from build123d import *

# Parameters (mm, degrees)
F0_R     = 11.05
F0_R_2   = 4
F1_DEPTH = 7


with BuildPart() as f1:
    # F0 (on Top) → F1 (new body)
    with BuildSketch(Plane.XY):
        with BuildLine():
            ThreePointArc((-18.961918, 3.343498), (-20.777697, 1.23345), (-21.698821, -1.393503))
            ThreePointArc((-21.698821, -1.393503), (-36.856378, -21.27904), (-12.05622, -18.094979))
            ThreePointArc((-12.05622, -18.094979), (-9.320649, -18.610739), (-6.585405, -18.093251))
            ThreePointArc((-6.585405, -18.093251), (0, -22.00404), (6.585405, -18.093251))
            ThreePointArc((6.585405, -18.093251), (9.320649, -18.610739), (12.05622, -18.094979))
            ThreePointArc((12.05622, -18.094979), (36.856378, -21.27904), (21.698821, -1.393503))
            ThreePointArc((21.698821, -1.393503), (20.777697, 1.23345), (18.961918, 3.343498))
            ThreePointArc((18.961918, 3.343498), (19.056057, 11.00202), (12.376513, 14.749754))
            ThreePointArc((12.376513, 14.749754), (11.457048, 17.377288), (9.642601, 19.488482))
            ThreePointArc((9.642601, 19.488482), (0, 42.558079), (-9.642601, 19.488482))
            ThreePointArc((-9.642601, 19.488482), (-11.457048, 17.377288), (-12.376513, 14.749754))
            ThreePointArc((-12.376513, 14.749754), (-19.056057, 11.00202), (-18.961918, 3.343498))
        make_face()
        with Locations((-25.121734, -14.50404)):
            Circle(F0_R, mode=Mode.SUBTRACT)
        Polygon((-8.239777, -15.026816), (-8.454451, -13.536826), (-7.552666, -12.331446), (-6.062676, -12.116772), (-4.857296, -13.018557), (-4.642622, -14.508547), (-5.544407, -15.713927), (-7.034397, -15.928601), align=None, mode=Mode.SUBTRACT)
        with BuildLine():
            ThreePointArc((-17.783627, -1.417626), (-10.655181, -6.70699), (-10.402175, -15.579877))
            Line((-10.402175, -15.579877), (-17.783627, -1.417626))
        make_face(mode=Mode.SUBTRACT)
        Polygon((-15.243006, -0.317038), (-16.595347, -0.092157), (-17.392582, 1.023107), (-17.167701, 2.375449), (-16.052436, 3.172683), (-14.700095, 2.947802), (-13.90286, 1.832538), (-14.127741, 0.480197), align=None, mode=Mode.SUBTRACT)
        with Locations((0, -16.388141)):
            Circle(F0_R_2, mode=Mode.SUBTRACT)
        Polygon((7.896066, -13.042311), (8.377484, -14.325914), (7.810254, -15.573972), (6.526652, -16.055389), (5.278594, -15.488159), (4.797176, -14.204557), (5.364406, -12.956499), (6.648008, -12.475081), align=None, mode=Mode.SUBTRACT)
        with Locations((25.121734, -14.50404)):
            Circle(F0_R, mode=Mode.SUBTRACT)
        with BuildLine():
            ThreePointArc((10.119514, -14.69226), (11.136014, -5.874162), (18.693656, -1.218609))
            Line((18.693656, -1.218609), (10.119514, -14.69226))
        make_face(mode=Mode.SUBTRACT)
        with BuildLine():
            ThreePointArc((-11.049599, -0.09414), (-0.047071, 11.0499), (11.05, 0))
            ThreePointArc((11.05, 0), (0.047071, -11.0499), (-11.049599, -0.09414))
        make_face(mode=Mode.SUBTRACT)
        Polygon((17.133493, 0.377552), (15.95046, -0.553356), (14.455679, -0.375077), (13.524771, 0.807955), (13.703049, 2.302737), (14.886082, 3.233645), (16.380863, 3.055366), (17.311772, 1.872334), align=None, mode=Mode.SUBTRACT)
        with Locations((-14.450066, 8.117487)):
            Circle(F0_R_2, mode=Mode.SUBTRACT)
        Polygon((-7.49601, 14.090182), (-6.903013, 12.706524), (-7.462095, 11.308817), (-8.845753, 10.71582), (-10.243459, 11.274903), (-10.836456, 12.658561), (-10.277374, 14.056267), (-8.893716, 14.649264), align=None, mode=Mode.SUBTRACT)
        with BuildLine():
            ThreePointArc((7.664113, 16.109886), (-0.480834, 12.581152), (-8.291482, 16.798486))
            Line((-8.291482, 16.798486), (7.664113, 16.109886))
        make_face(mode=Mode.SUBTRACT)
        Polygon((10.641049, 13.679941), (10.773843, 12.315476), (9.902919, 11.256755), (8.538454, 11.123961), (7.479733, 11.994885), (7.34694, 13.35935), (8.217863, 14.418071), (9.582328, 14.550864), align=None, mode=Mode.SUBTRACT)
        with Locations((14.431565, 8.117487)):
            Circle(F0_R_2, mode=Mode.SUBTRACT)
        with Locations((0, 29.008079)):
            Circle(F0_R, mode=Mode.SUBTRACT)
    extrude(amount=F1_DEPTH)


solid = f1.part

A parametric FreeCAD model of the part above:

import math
import FreeCAD as App
import Part
import Sketcher

V = App.Vector
Q = App.Units.Quantity

doc = App.newDocument("Part")
body = doc.addObject("PartDesign::Body", "Body")

# Sketch on XY plane
sketch1 = doc.addObject("Sketcher::SketchObject", "Sketch")
body.addObject(sketch1)
sketch1.AttachmentSupport = (doc.XY_Plane, [""])
sketch1.MapMode = "FlatFace"
sketch1.addGeometry(Part.ArcOfCircle(Part.Circle(V(-14.283686, -2.518602, 0), V(0, 0, 1), 7.500005), math.radians(128.591514), math.radians(171.372312)), False)
sketch1.addGeometry(Part.ArcOfCircle(Part.Circle(V(-25.121734, -14.50404, 0), V(0, 0, 1), 13.55), math.radians(75.36778), math.radians(344.632216)), False)
sketch1.addGeometry(Part.ArcOfCircle(Part.Circle(V(-9.323018, -11.110744, 0), V(0, 0, 1), 7.499995), math.radians(-111.372332), math.radians(-68.591473)), False)
sketch1.addGeometry(Part.ArcOfCircle(Part.Circle(V(0, -14.504041, 0), V(0, 0, 1), 7.499999), math.radians(-151.408512), math.radians(-28.591488)), False)
sketch1.addGeometry(Part.ArcOfCircle(Part.Circle(V(9.323018, -11.110744, 0), V(0, 0, 1), 7.499995), math.radians(-111.408527), math.radians(-68.627668)), False)
sketch1.addGeometry(Part.ArcOfCircle(Part.Circle(V(25.121734, -14.50404, 0), V(0, 0, 1), 13.55), math.radians(-164.632216), math.radians(104.63222)), False)
sketch1.addGeometry(Part.ArcOfCircle(Part.Circle(V(14.283686, -2.518602, 0), V(0, 0, 1), 7.500005), math.radians(8.627688), math.radians(51.408486)), False)
sketch1.addGeometry(Part.ArcOfCircle(Part.Circle(V(12.560866, 7.25202, 0), V(0, 0, 1), 7.5), math.radians(-31.408496), math.radians(91.408496)), False)
sketch1.addGeometry(Part.ArcOfCircle(Part.Circle(V(4.960674, 13.629339, 0), V(0, 0, 1), 7.5), math.radians(8.591503), math.radians(51.372329)), False)
sketch1.addGeometry(Part.ArcOfCircle(Part.Circle(V(0, 29.008079, 0), V(0, 0, 1), 13.55), math.radians(-44.632219), math.radians(224.632219)), False)
sketch1.addGeometry(Part.ArcOfCircle(Part.Circle(V(-4.960674, 13.629339, 0), V(0, 0, 1), 7.5), math.radians(128.627671), math.radians(171.408497)), False)
sketch1.addGeometry(Part.ArcOfCircle(Part.Circle(V(-12.560866, 7.25202, 0), V(0, 0, 1), 7.5), math.radians(88.591504), math.radians(211.408496)), False)
sketch1.addGeometry(Part.Circle(V(-25.121734, -14.50404, 0), V(0, 0, 1), 11.05), False)
sketch1.addGeometry(Part.LineSegment(V(-7.034397, -15.928601, 0), V(-8.239777, -15.026816, 0)), False)
sketch1.addGeometry(Part.LineSegment(V(-8.239777, -15.026816, 0), V(-8.454451, -13.536826, 0)), False)
sketch1.addGeometry(Part.LineSegment(V(-8.454451, -13.536826, 0), V(-7.552666, -12.331446, 0)), False)
sketch1.addGeometry(Part.LineSegment(V(-7.552666, -12.331446, 0), V(-6.062676, -12.116772, 0)), False)
sketch1.addGeometry(Part.LineSegment(V(-6.062676, -12.116772, 0), V(-4.857296, -13.018557, 0)), False)
sketch1.addGeometry(Part.LineSegment(V(-4.857296, -13.018557, 0), V(-4.642622, -14.508547, 0)), False)
sketch1.addGeometry(Part.LineSegment(V(-4.642622, -14.508547, 0), V(-5.544407, -15.713927, 0)), False)
sketch1.addGeometry(Part.LineSegment(V(-5.544407, -15.713927, 0), V(-7.034397, -15.928601, 0)), False)
sketch1.addGeometry(Part.LineSegment(V(-10.402175, -15.579877, 0), V(-17.783627, -1.417626, 0)), False)
sketch1.addGeometry(Part.ArcOfCircle(Part.Circle(V(-19.667004, -11.404008, 0), V(0, 0, 1), 10.162428), math.radians(-24.262169), math.radians(79.319773)), False)
sketch1.addGeometry(Part.LineSegment(V(-14.127741, 0.480197, 0), V(-15.243006, -0.317038, 0)), False)
sketch1.addGeometry(Part.LineSegment(V(-15.243006, -0.317038, 0), V(-16.595347, -0.092157, 0)), False)
sketch1.addGeometry(Part.LineSegment(V(-16.595347, -0.092157, 0), V(-17.392582, 1.023107, 0)), False)
sketch1.addGeometry(Part.LineSegment(V(-17.392582, 1.023107, 0), V(-17.167701, 2.375449, 0)), False)
sketch1.addGeometry(Part.LineSegment(V(-17.167701, 2.375449, 0), V(-16.052436, 3.172683, 0)), False)
sketch1.addGeometry(Part.LineSegment(V(-16.052436, 3.172683, 0), V(-14.700095, 2.947802, 0)), False)
sketch1.addGeometry(Part.LineSegment(V(-14.700095, 2.947802, 0), V(-13.90286, 1.832538, 0)), False)
sketch1.addGeometry(Part.LineSegment(V(-13.90286, 1.832538, 0), V(-14.127741, 0.480197, 0)), False)
sketch1.addGeometry(Part.ArcOfCircle(Part.Circle(V(0, 0, 0), V(0, 0, 1), 11.05), math.radians(-179.511866), math.radians(0.000001)), False)
sketch1.addGeometry(Part.ArcOfCircle(Part.Circle(V(0, 0, 0), V(0, 0, 1), 11.05), math.radians(-0.000001), math.radians(180.488136)), False)
sketch1.addGeometry(Part.Circle(V(0, -16.388141, 0), V(0, 0, 1), 4), False)
sketch1.addGeometry(Part.LineSegment(V(6.648008, -12.475081, 0), V(7.896066, -13.042311, 0)), False)
sketch1.addGeometry(Part.LineSegment(V(7.896066, -13.042311, 0), V(8.377484, -14.325914, 0)), False)
sketch1.addGeometry(Part.LineSegment(V(8.377484, -14.325914, 0), V(7.810254, -15.573972, 0)), False)
sketch1.addGeometry(Part.LineSegment(V(7.810254, -15.573972, 0), V(6.526652, -16.055389, 0)), False)
sketch1.addGeometry(Part.LineSegment(V(6.526652, -16.055389, 0), V(5.278594, -15.488159, 0)), False)
sketch1.addGeometry(Part.LineSegment(V(5.278594, -15.488159, 0), V(4.797176, -14.204557, 0)), False)
sketch1.addGeometry(Part.LineSegment(V(4.797176, -14.204557, 0), V(5.364406, -12.956499, 0)), False)
sketch1.addGeometry(Part.LineSegment(V(5.364406, -12.956499, 0), V(6.648008, -12.475081, 0)), False)
sketch1.addGeometry(Part.Circle(V(25.121734, -14.50404, 0), V(0, 0, 1), 11.05), False)
sketch1.addGeometry(Part.LineSegment(V(18.693656, -1.218609, 0), V(10.119514, -14.69226, 0)), False)
sketch1.addGeometry(Part.ArcOfCircle(Part.Circle(V(19.709663, -11.33012, 0), V(0, 0, 1), 10.162428), math.radians(95.737832), math.radians(199.31978)), False)
sketch1.addGeometry(Part.LineSegment(V(17.311772, 1.872334, 0), V(17.133493, 0.377552, 0)), False)
sketch1.addGeometry(Part.LineSegment(V(17.133493, 0.377552, 0), V(15.95046, -0.553356, 0)), False)
sketch1.addGeometry(Part.LineSegment(V(15.95046, -0.553356, 0), V(14.455679, -0.375077, 0)), False)
sketch1.addGeometry(Part.LineSegment(V(14.455679, -0.375077, 0), V(13.524771, 0.807955, 0)), False)
sketch1.addGeometry(Part.LineSegment(V(13.524771, 0.807955, 0), V(13.703049, 2.302737, 0)), False)
sketch1.addGeometry(Part.LineSegment(V(13.703049, 2.302737, 0), V(14.886082, 3.233645, 0)), False)
sketch1.addGeometry(Part.LineSegment(V(14.886082, 3.233645, 0), V(16.380863, 3.055366, 0)), False)
sketch1.addGeometry(Part.LineSegment(V(16.380863, 3.055366, 0), V(17.311772, 1.872334, 0)), False)
sketch1.addGeometry(Part.Circle(V(-14.450066, 8.117487, 0), V(0, 0, 1), 4), False)
sketch1.addGeometry(Part.LineSegment(V(-8.893716, 14.649264, 0), V(-7.49601, 14.090182, 0)), False)
sketch1.addGeometry(Part.LineSegment(V(-7.49601, 14.090182, 0), V(-6.903013, 12.706524, 0)), False)
sketch1.addGeometry(Part.LineSegment(V(-6.903013, 12.706524, 0), V(-7.462095, 11.308817, 0)), False)
sketch1.addGeometry(Part.LineSegment(V(-7.462095, 11.308817, 0), V(-8.845753, 10.71582, 0)), False)
sketch1.addGeometry(Part.LineSegment(V(-8.845753, 10.71582, 0), V(-10.243459, 11.274903, 0)), False)
sketch1.addGeometry(Part.LineSegment(V(-10.243459, 11.274903, 0), V(-10.836456, 12.658561, 0)), False)
sketch1.addGeometry(Part.LineSegment(V(-10.836456, 12.658561, 0), V(-10.277374, 14.056267, 0)), False)
sketch1.addGeometry(Part.LineSegment(V(-10.277374, 14.056267, 0), V(-8.893716, 14.649264, 0)), False)
sketch1.addGeometry(Part.LineSegment(V(-8.291482, 16.798486, 0), V(7.664113, 16.109886, 0)), False)
sketch1.addGeometry(Part.ArcOfCircle(Part.Circle(V(-0.042659, 22.734128, 0), V(0, 0, 1), 10.162427), math.radians(-144.262172), math.radians(-40.68022)), False)
sketch1.addGeometry(Part.Circle(V(14.431565, 8.117487, 0), V(0, 0, 1), 4), False)
sketch1.addGeometry(Part.LineSegment(V(9.582328, 14.550864, 0), V(10.641049, 13.679941, 0)), False)
sketch1.addGeometry(Part.LineSegment(V(10.641049, 13.679941, 0), V(10.773843, 12.315476, 0)), False)
sketch1.addGeometry(Part.LineSegment(V(10.773843, 12.315476, 0), V(9.902919, 11.256755, 0)), False)
sketch1.addGeometry(Part.LineSegment(V(9.902919, 11.256755, 0), V(8.538454, 11.123961, 0)), False)
sketch1.addGeometry(Part.LineSegment(V(8.538454, 11.123961, 0), V(7.479733, 11.994885, 0)), False)
sketch1.addGeometry(Part.LineSegment(V(7.479733, 11.994885, 0), V(7.34694, 13.35935, 0)), False)
sketch1.addGeometry(Part.LineSegment(V(7.34694, 13.35935, 0), V(8.217863, 14.418071, 0)), False)
sketch1.addGeometry(Part.LineSegment(V(8.217863, 14.418071, 0), V(9.582328, 14.550864, 0)), False)
sketch1.addGeometry(Part.Circle(V(0, 29.008079, 0), V(0, 0, 1), 11.05), False)
sketch1.addConstraint(Sketcher.Constraint("Coincident", 0, 2, 1, 1))
sketch1.addConstraint(Sketcher.Constraint("Coincident", 1, 2, 2, 1))
sketch1.addConstraint(Sketcher.Constraint("Coincident", 2, 2, 3, 1))
sketch1.addConstraint(Sketcher.Constraint("Coincident", 3, 2, 4, 1))
sketch1.addConstraint(Sketcher.Constraint("Coincident", 4, 2, 5, 1))
sketch1.addConstraint(Sketcher.Constraint("Coincident", 5, 2, 6, 1))
sketch1.addConstraint(Sketcher.Constraint("Coincident", 6, 2, 7, 1))
sketch1.addConstraint(Sketcher.Constraint("Coincident", 7, 2, 8, 1))
sketch1.addConstraint(Sketcher.Constraint("Coincident", 8, 2, 9, 1))
sketch1.addConstraint(Sketcher.Constraint("Coincident", 9, 2, 10, 1))
sketch1.addConstraint(Sketcher.Constraint("Coincident", 10, 2, 11, 1))
sketch1.addConstraint(Sketcher.Constraint("Coincident", 11, 2, 0, 1))
sketch1.addConstraint(Sketcher.Constraint("Coincident", 13, 2, 14, 1))
sketch1.addConstraint(Sketcher.Constraint("Coincident", 14, 2, 15, 1))
sketch1.addConstraint(Sketcher.Constraint("Coincident", 15, 2, 16, 1))
sketch1.addConstraint(Sketcher.Constraint("Coincident", 16, 2, 17, 1))
sketch1.addConstraint(Sketcher.Constraint("Coincident", 17, 2, 18, 1))
sketch1.addConstraint(Sketcher.Constraint("Coincident", 18, 2, 19, 1))
sketch1.addConstraint(Sketcher.Constraint("Coincident", 19, 2, 20, 1))
sketch1.addConstraint(Sketcher.Constraint("Coincident", 20, 2, 13, 1))
sketch1.addConstraint(Sketcher.Constraint("Coincident", 21, 1, 22, 1))
sketch1.addConstraint(Sketcher.Constraint("Coincident", 22, 2, 21, 2))
sketch1.addConstraint(Sketcher.Constraint("Coincident", 23, 2, 24, 1))
sketch1.addConstraint(Sketcher.Constraint("Coincident", 24, 2, 25, 1))
sketch1.addConstraint(Sketcher.Constraint("Coincident", 25, 2, 26, 1))
sketch1.addConstraint(Sketcher.Constraint("Coincident", 26, 2, 27, 1))
sketch1.addConstraint(Sketcher.Constraint("Coincident", 27, 2, 28, 1))
sketch1.addConstraint(Sketcher.Constraint("Coincident", 28, 2, 29, 1))
sketch1.addConstraint(Sketcher.Constraint("Coincident", 29, 2, 30, 1))
sketch1.addConstraint(Sketcher.Constraint("Coincident", 30, 2, 23, 1))
sketch1.addConstraint(Sketcher.Constraint("Tangent", 31, 1, 32, 2))
sketch1.addConstraint(Sketcher.Constraint("Coincident", 32, 1, 31, 2))
sketch1.addConstraint(Sketcher.Constraint("Coincident", 34, 2, 35, 1))
sketch1.addConstraint(Sketcher.Constraint("Coincident", 35, 2, 36, 1))
sketch1.addConstraint(Sketcher.Constraint("Coincident", 36, 2, 37, 1))
sketch1.addConstraint(Sketcher.Constraint("Coincident", 37, 2, 38, 1))
sketch1.addConstraint(Sketcher.Constraint("Coincident", 38, 2, 39, 1))
sketch1.addConstraint(Sketcher.Constraint("Coincident", 39, 2, 40, 1))
sketch1.addConstraint(Sketcher.Constraint("Coincident", 40, 2, 41, 1))
sketch1.addConstraint(Sketcher.Constraint("Coincident", 41, 2, 34, 1))
sketch1.addConstraint(Sketcher.Constraint("Coincident", 43, 1, 44, 1))
sketch1.addConstraint(Sketcher.Constraint("Coincident", 44, 2, 43, 2))
sketch1.addConstraint(Sketcher.Constraint("Coincident", 45, 2, 46, 1))
sketch1.addConstraint(Sketcher.Constraint("Coincident", 46, 2, 47, 1))
sketch1.addConstraint(Sketcher.Constraint("Coincident", 47, 2, 48, 1))
sketch1.addConstraint(Sketcher.Constraint("Coincident", 48, 2, 49, 1))
sketch1.addConstraint(Sketcher.Constraint("Coincident", 49, 2, 50, 1))
sketch1.addConstraint(Sketcher.Constraint("Coincident", 50, 2, 51, 1))
sketch1.addConstraint(Sketcher.Constraint("Coincident", 51, 2, 52, 1))
sketch1.addConstraint(Sketcher.Constraint("Coincident", 52, 2, 45, 1))
sketch1.addConstraint(Sketcher.Constraint("Coincident", 54, 2, 55, 1))
sketch1.addConstraint(Sketcher.Constraint("Coincident", 55, 2, 56, 1))
sketch1.addConstraint(Sketcher.Constraint("Coincident", 56, 2, 57, 1))
sketch1.addConstraint(Sketcher.Constraint("Coincident", 57, 2, 58, 1))
sketch1.addConstraint(Sketcher.Constraint("Coincident", 58, 2, 59, 1))
sketch1.addConstraint(Sketcher.Constraint("Coincident", 59, 2, 60, 1))
sketch1.addConstraint(Sketcher.Constraint("Coincident", 60, 2, 61, 1))
sketch1.addConstraint(Sketcher.Constraint("Coincident", 61, 2, 54, 1))
sketch1.addConstraint(Sketcher.Constraint("Coincident", 62, 1, 63, 1))
sketch1.addConstraint(Sketcher.Constraint("Coincident", 63, 2, 62, 2))
sketch1.addConstraint(Sketcher.Constraint("Coincident", 65, 2, 66, 1))
sketch1.addConstraint(Sketcher.Constraint("Coincident", 66, 2, 67, 1))
sketch1.addConstraint(Sketcher.Constraint("Coincident", 67, 2, 68, 1))
sketch1.addConstraint(Sketcher.Constraint("Coincident", 68, 2, 69, 1))
sketch1.addConstraint(Sketcher.Constraint("Coincident", 69, 2, 70, 1))
sketch1.addConstraint(Sketcher.Constraint("Coincident", 70, 2, 71, 1))
sketch1.addConstraint(Sketcher.Constraint("Coincident", 71, 2, 72, 1))
sketch1.addConstraint(Sketcher.Constraint("Coincident", 72, 2, 65, 1))
sketch1.addConstraint(Sketcher.Constraint("Coincident", 31, 3, -1, 1))
sketch1.addConstraint(Sketcher.Constraint("Coincident", 12, 3, 1, 3))
sketch1.addConstraint(Sketcher.Constraint("Coincident", 42, 3, 5, 3))
sketch1.addConstraint(Sketcher.Constraint("Coincident", 73, 3, 9, 3))
sketch1.addConstraint(Sketcher.Constraint("Equal", 2, 4))
sketch1.addConstraint(Sketcher.Constraint("Equal", 1, 5))
sketch1.addConstraint(Sketcher.Constraint("Equal", 0, 6))
sketch1.addConstraint(Sketcher.Constraint("Equal", 3, 7))
sketch1.addConstraint(Sketcher.Constraint("Equal", 7, 8))
sketch1.addConstraint(Sketcher.Constraint("Equal", 5, 9))
sketch1.addConstraint(Sketcher.Constraint("Equal", 8, 10))
sketch1.addConstraint(Sketcher.Constraint("Equal", 10, 11))
sketch1.addConstraint(Sketcher.Constraint("Equal", 12, 31))
sketch1.addConstraint(Sketcher.Constraint("Equal", 32, 42))
sketch1.addConstraint(Sketcher.Constraint("Equal", 22, 44))
sketch1.addConstraint(Sketcher.Constraint("Equal", 33, 53))
sketch1.addConstraint(Sketcher.Constraint("Equal", 44, 63))
sketch1.addConstraint(Sketcher.Constraint("Equal", 53, 64))
sketch1.addConstraint(Sketcher.Constraint("Equal", 42, 73))
sketch1.addConstraint(Sketcher.Constraint("Symmetric", 2, 3, 4, 3, -2))
sketch1.addConstraint(Sketcher.Constraint("Symmetric", 1, 3, 5, 3, -2))
sketch1.addConstraint(Sketcher.Constraint("Symmetric", 0, 3, 6, 3, -2))
sketch1.addConstraint(Sketcher.Constraint("Symmetric", 8, 3, 10, 3, -2))
sketch1.addConstraint(Sketcher.Constraint("Symmetric", 7, 3, 11, 3, -2))
sketch1.addConstraint(Sketcher.Constraint("PointOnObject", 3, 3, -2))
sketch1.addConstraint(Sketcher.Constraint("PointOnObject", 9, 3, -2))
sketch1.addConstraint(Sketcher.Constraint("PointOnObject", 33, 3, -2))
sketch1.addConstraint(Sketcher.Constraint("PointOnObject", 32, 1, -1))
sketch1.addConstraint(Sketcher.Constraint("Perpendicular", 13, 15))
sketch1.addConstraint(Sketcher.Constraint("Perpendicular", 14, 16))
sketch1.addConstraint(Sketcher.Constraint("Perpendicular", 15, 17))
sketch1.addConstraint(Sketcher.Constraint("Perpendicular", 16, 18))
sketch1.addConstraint(Sketcher.Constraint("Perpendicular", 17, 19))
sketch1.addConstraint(Sketcher.Constraint("Perpendicular", 18, 20))
sketch1.addConstraint(Sketcher.Constraint("Perpendicular", 23, 25))
sketch1.addConstraint(Sketcher.Constraint("Perpendicular", 24, 26))
sketch1.addConstraint(Sketcher.Constraint("Perpendicular", 25, 27))
sketch1.addConstraint(Sketcher.Constraint("Perpendicular", 26, 28))
sketch1.addConstraint(Sketcher.Constraint("Perpendicular", 27, 29))
sketch1.addConstraint(Sketcher.Constraint("Perpendicular", 28, 30))
sketch1.addConstraint(Sketcher.Constraint("Perpendicular", 34, 36))
sketch1.addConstraint(Sketcher.Constraint("Perpendicular", 35, 37))
sketch1.addConstraint(Sketcher.Constraint("Perpendicular", 36, 38))
sketch1.addConstraint(Sketcher.Constraint("Perpendicular", 37, 39))
sketch1.addConstraint(Sketcher.Constraint("Perpendicular", 38, 40))
sketch1.addConstraint(Sketcher.Constraint("Perpendicular", 39, 41))
sketch1.addConstraint(Sketcher.Constraint("Perpendicular", 45, 47))
sketch1.addConstraint(Sketcher.Constraint("Perpendicular", 46, 48))
sketch1.addConstraint(Sketcher.Constraint("Perpendicular", 47, 49))
sketch1.addConstraint(Sketcher.Constraint("Perpendicular", 48, 50))
sketch1.addConstraint(Sketcher.Constraint("Perpendicular", 49, 51))
sketch1.addConstraint(Sketcher.Constraint("Perpendicular", 50, 52))
sketch1.addConstraint(Sketcher.Constraint("Perpendicular", 54, 56))
sketch1.addConstraint(Sketcher.Constraint("Perpendicular", 55, 57))
sketch1.addConstraint(Sketcher.Constraint("Perpendicular", 56, 58))
sketch1.addConstraint(Sketcher.Constraint("Perpendicular", 57, 59))
sketch1.addConstraint(Sketcher.Constraint("Perpendicular", 58, 60))
sketch1.addConstraint(Sketcher.Constraint("Perpendicular", 59, 61))
sketch1.addConstraint(Sketcher.Constraint("Perpendicular", 65, 67))
sketch1.addConstraint(Sketcher.Constraint("Perpendicular", 66, 68))
sketch1.addConstraint(Sketcher.Constraint("Perpendicular", 67, 69))
sketch1.addConstraint(Sketcher.Constraint("Perpendicular", 68, 70))
sketch1.addConstraint(Sketcher.Constraint("Perpendicular", 69, 71))
sketch1.addConstraint(Sketcher.Constraint("Perpendicular", 70, 72))
sketch1.addConstraint(Sketcher.Constraint("Horizontal", 1, 3, 3, 3))
sketch1.addConstraint(Sketcher.Constraint("Horizontal", 53, 3, 64, 3))
sketch1.addConstraint(Sketcher.Constraint("Equal", 13, 14))
sketch1.addConstraint(Sketcher.Constraint("Equal", 14, 15))
sketch1.addConstraint(Sketcher.Constraint("Equal", 15, 16))
sketch1.addConstraint(Sketcher.Constraint("Equal", 16, 17))
sketch1.addConstraint(Sketcher.Constraint("Equal", 17, 18))
sketch1.addConstraint(Sketcher.Constraint("Equal", 23, 24))
sketch1.addConstraint(Sketcher.Constraint("Equal", 24, 25))
sketch1.addConstraint(Sketcher.Constraint("Equal", 25, 26))
sketch1.addConstraint(Sketcher.Constraint("Equal", 26, 27))
sketch1.addConstraint(Sketcher.Constraint("Equal", 27, 28))
sketch1.addConstraint(Sketcher.Constraint("Equal", 30, 34))
sketch1.addConstraint(Sketcher.Constraint("Equal", 34, 35))
sketch1.addConstraint(Sketcher.Constraint("Equal", 35, 36))
sketch1.addConstraint(Sketcher.Constraint("Equal", 36, 37))
sketch1.addConstraint(Sketcher.Constraint("Equal", 37, 38))
sketch1.addConstraint(Sketcher.Constraint("Equal", 38, 39))
sketch1.addConstraint(Sketcher.Constraint("Equal", 21, 43))
sketch1.addConstraint(Sketcher.Constraint("Equal", 20, 45))
sketch1.addConstraint(Sketcher.Constraint("Equal", 45, 46))
sketch1.addConstraint(Sketcher.Constraint("Equal", 46, 47))
sketch1.addConstraint(Sketcher.Constraint("Equal", 47, 48))
sketch1.addConstraint(Sketcher.Constraint("Equal", 48, 49))
sketch1.addConstraint(Sketcher.Constraint("Equal", 49, 50))
sketch1.addConstraint(Sketcher.Constraint("Equal", 52, 54))
sketch1.addConstraint(Sketcher.Constraint("Equal", 54, 55))
sketch1.addConstraint(Sketcher.Constraint("Equal", 55, 56))
sketch1.addConstraint(Sketcher.Constraint("Equal", 56, 57))
sketch1.addConstraint(Sketcher.Constraint("Equal", 57, 58))
sketch1.addConstraint(Sketcher.Constraint("Equal", 58, 59))
sketch1.addConstraint(Sketcher.Constraint("Equal", 43, 62))
sketch1.addConstraint(Sketcher.Constraint("Equal", 41, 65))
sketch1.addConstraint(Sketcher.Constraint("Equal", 65, 66))
sketch1.addConstraint(Sketcher.Constraint("Equal", 66, 67))
sketch1.addConstraint(Sketcher.Constraint("Equal", 67, 68))
sketch1.addConstraint(Sketcher.Constraint("Equal", 68, 69))
sketch1.addConstraint(Sketcher.Constraint("Equal", 69, 70))
sketch1.addConstraint(Sketcher.Constraint("Diameter", 33, Q("8 mm")))
sketch1.addConstraint(Sketcher.Constraint("Diameter", 12, Q("22.1 mm")))
sketch1.addConstraint(Sketcher.Constraint("Radius", 3, Q("7.499999 mm")))
sketch1.addConstraint(Sketcher.Constraint("Radius", 1, Q("13.55 mm")))
sketch1.addConstraint(Sketcher.Constraint("Radius", 22, Q("10.162428 mm")))
sketch1.addConstraint(Sketcher.Constraint("Radius", 0, Q("7.500005 mm")))
sketch1.addConstraint(Sketcher.Constraint("Radius", 2, Q("7.499995 mm")))
sketch1.addConstraint(Sketcher.Constraint("DistanceX", -1, 1, 8, 2, Q("9.642601 mm")))
sketch1.addConstraint(Sketcher.Constraint("DistanceY", -1, 1, 11, 2, Q("3.343498 mm")))
sketch1.addConstraint(Sketcher.Constraint("DistanceY", 20, 2, -1, 1, Q("15.928601 mm")))
sketch1.addConstraint(Sketcher.Constraint("DistanceX", 26, 2, -1, 1, Q("17.167701 mm")))
sketch1.addConstraint(Sketcher.Constraint("DistanceY", -1, 1, 28, 2, Q("2.947802 mm")))
sketch1.addConstraint(Sketcher.Constraint("DistanceX", 31, 1, -1, 1, Q("11.049599 mm")))
sketch1.addConstraint(Sketcher.Constraint("DistanceY", 40, 2, -1, 1, Q("12.956499 mm")))
sketch1.addConstraint(Sketcher.Constraint("Distance", 23, Q("1.370912 mm")))
sketch1.addConstraint(Sketcher.Constraint("DistanceY", 1, 3, -1, 1, Q("14.50404 mm")))
sketch1.addConstraint(Sketcher.Constraint("DistanceX", 2, 3, -1, 1, Q("9.323018 mm")))
sketch1.addConstraint(Sketcher.Constraint("DistanceY", -1, 1, 7, 3, Q("7.25202 mm")))
sketch1.addConstraint(Sketcher.Constraint("DistanceY", -1, 1, 8, 3, Q("13.629339 mm")))
sketch1.addConstraint(Sketcher.Constraint("DistanceY", -1, 1, 9, 3, Q("29.008079 mm")))
sketch1.addConstraint(Sketcher.Constraint("DistanceY", 22, 3, -1, 1, Q("11.404008 mm")))
sketch1.addConstraint(Sketcher.Constraint("DistanceY", 33, 3, -1, 1, Q("16.388141 mm")))
sketch1.addConstraint(Sketcher.Constraint("DistanceY", 44, 3, -1, 1, Q("11.33012 mm")))
sketch1.addConstraint(Sketcher.Constraint("DistanceX", 63, 3, -1, 1, Q("0.042659 mm")))
sketch1.addConstraint(Sketcher.Constraint("DistanceY", -1, 1, 63, 3, Q("22.734128 mm")))
sketch1.addConstraint(Sketcher.Constraint("DistanceX", 0, 2, -1, 1, Q("21.698821 mm")))
sketch1.addConstraint(Sketcher.Constraint("DistanceX", 1, 2, -1, 1, Q("12.05622 mm")))
sketch1.addConstraint(Sketcher.Constraint("DistanceY", 1, 2, -1, 1, Q("18.094979 mm")))
sketch1.addConstraint(Sketcher.Constraint("DistanceX", 14, 2, -1, 1, Q("8.454451 mm")))
sketch1.addConstraint(Sketcher.Constraint("DistanceY", 16, 2, -1, 1, Q("12.116772 mm")))
sketch1.addConstraint(Sketcher.Constraint("DistanceY", -1, 1, 26, 2, Q("2.375449 mm")))
sketch1.addConstraint(Sketcher.Constraint("DistanceX", 29, 2, -1, 1, Q("13.90286 mm")))
sketch1.addConstraint(Sketcher.Constraint("DistanceY", 34, 2, -1, 1, Q("13.042311 mm")))
sketch1.addConstraint(Sketcher.Constraint("DistanceY", 37, 2, -1, 1, Q("16.055389 mm")))
sketch1.addConstraint(Sketcher.Constraint("DistanceY", 43, 1, -1, 1, Q("1.218609 mm")))
sketch1.addConstraint(Sketcher.Constraint("DistanceY", 44, 2, -1, 1, Q("14.69226 mm")))
sketch1.addConstraint(Sketcher.Constraint("DistanceX", -1, 1, 46, 2, Q("15.95046 mm")))
sketch1.addConstraint(Sketcher.Constraint("DistanceX", -1, 1, 47, 2, Q("14.455679 mm")))
sketch1.addConstraint(Sketcher.Constraint("DistanceX", -1, 1, 48, 2, Q("13.524771 mm")))
sketch1.addConstraint(Sketcher.Constraint("DistanceX", -1, 1, 49, 2, Q("13.703049 mm")))
sketch1.addConstraint(Sketcher.Constraint("DistanceX", 54, 2, -1, 1, Q("7.49601 mm")))
sketch1.addConstraint(Sketcher.Constraint("DistanceY", -1, 1, 57, 2, Q("10.71582 mm")))
sketch1.addConstraint(Sketcher.Constraint("DistanceX", 58, 2, -1, 1, Q("10.243459 mm")))
sketch1.addConstraint(Sketcher.Constraint("DistanceY", -1, 1, 59, 2, Q("12.658561 mm")))
sketch1.addConstraint(Sketcher.Constraint("DistanceX", -1, 1, 65, 2, Q("10.641049 mm")))
sketch1.addConstraint(Sketcher.Constraint("DistanceY", -1, 1, 65, 2, Q("13.679941 mm")))
sketch1.addConstraint(Sketcher.Constraint("DistanceX", -1, 1, 67, 2, Q("9.902919 mm")))
sketch1.addConstraint(Sketcher.Constraint("DistanceY", -1, 1, 68, 2, Q("11.123961 mm")))
sketch1.addConstraint(Sketcher.Constraint("DistanceX", 0, 3, -1, 1, Q("14.283686 mm")))
sketch1.addConstraint(Sketcher.Constraint("DistanceX", 22, 3, -1, 1, Q("19.667004 mm")))
sketch1.addConstraint(Sketcher.Constraint("DistanceX", -1, 1, 44, 3, Q("19.709663 mm")))
sketch1.addConstraint(Sketcher.Constraint("DistanceX", 53, 3, -1, 1, Q("14.450066 mm")))
sketch1.addConstraint(Sketcher.Constraint("DistanceY", -1, 1, 53, 3, Q("8.117487 mm")))
sketch1.addConstraint(Sketcher.Constraint("DistanceX", -1, 1, 64, 3, Q("14.431565 mm")))
sketch1.addConstraint(Sketcher.Constraint("DistanceX", 13, 2, -1, 1, Q("8.239777 mm")))
sketch1.addConstraint(Sketcher.Constraint("DistanceX", 21, 1, -1, 1, Q("10.402175 mm")))
sketch1.addConstraint(Sketcher.Constraint("DistanceX", -1, 1, 34, 2, Q("7.896066 mm")))
sketch1.addConstraint(Sketcher.Constraint("DistanceY", -1, 1, 45, 2, Q("0.377552 mm")))
sketch1.addConstraint(Sketcher.Constraint("DistanceX", 62, 1, -1, 1, Q("8.291482 mm")))
pad1 = doc.addObject("PartDesign::Pad", "Pad")
body.addObject(pad1)
pad1.Profile = sketch1
pad1.Length = 7

doc.recompute()
